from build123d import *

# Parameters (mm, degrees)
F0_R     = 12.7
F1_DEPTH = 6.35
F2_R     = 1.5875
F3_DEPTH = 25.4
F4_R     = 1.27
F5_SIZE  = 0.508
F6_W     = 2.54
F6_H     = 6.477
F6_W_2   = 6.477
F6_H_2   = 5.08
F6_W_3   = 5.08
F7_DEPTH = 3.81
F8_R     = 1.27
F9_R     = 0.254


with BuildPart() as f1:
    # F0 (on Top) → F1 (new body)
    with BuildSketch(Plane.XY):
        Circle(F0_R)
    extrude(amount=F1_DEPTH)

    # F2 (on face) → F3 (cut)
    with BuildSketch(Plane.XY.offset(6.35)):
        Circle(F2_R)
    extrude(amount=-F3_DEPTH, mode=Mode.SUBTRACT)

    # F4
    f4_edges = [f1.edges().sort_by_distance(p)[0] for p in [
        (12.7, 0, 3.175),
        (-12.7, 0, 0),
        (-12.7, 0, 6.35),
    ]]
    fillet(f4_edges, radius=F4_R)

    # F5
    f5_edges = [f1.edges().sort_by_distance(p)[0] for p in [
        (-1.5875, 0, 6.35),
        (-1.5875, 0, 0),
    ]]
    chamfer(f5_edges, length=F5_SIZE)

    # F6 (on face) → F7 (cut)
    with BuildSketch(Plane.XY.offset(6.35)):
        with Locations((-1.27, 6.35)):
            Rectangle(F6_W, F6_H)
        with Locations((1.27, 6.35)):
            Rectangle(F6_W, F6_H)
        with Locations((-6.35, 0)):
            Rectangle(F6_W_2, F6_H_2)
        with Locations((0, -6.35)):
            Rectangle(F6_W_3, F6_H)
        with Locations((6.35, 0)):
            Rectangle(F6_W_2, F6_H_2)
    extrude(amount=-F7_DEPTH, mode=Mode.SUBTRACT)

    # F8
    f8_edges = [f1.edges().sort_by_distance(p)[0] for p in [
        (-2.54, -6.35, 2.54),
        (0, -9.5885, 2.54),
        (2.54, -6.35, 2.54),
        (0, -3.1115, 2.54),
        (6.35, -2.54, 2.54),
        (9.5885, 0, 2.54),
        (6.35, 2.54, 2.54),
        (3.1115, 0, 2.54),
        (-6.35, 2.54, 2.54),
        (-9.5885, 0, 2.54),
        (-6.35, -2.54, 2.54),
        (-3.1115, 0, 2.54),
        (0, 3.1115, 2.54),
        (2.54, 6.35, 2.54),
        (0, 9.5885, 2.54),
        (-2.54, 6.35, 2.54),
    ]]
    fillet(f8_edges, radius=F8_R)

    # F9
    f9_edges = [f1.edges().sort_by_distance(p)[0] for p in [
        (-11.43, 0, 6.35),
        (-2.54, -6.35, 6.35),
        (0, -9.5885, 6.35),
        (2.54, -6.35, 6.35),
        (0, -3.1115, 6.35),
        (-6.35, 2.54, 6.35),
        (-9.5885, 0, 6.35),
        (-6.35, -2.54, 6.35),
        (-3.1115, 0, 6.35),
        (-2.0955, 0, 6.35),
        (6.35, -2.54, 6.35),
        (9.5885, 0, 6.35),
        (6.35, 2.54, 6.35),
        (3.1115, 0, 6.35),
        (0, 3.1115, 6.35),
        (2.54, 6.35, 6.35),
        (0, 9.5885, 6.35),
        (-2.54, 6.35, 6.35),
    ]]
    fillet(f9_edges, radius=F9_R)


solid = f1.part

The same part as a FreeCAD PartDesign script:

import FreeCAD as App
import Part
import Sketcher
Q = App.Units.Quantity


def edges_at(feature, points):
    """Names of the edges that pass closest to the given points."""
    edges = feature.Shape.Edges
    near = lambda p: min(range(len(edges)), key=lambda i: edges[i].distToShape(Part.Vertex(*p))[0])
    return sorted({f"Edge{near(p) + 1}" for p in points})


def add_polygon(sketch, points):
    """Adds a closed chain of lines whose ends are joined by coincident constraints."""
    first, n = sketch.GeometryCount, len(points)
    for a, b in zip(points, points[1:] + points[:1]):
        sketch.addGeometry(Part.LineSegment(App.Vector(*a, 0), App.Vector(*b, 0)), False)
    for i in range(n):
        sketch.addConstraint(Sketcher.Constraint("Coincident", first + i, 2, first + (i + 1) % n, 1))

doc = App.newDocument("Part")
params = doc.addObject("Spreadsheet::Sheet", "Params")
for row, (alias, value) in enumerate([
    ("sketch1_diameter", "1 in"),
    ("pad1_length", "0.25 in"),
    ("sketch2_diameter", "0.125 in"),
    ("pocket1_length", "1 in"),
    ("fillet_radius", "0.05 in"),
    ("chamfer_size", "0.02 in"),
    ("sketch3_width", "0.2 in"),
    ("sketch3_width2", "0.255 in"),
    ("pocket2_length", "0.15 in"),
    ("fillet2_radius", "0.05 in"),
    ("fillet3_radius", "0.01 in"),
], start=1):
    params.set(f"A{row}", alias)
    params.set(f"B{row}", "=" + value)
    params.setAlias(f"B{row}", alias)

body = doc.addObject("PartDesign::Body", "Body")

# Sketch on XY plane
sketch1 = body.newObject("Sketcher::SketchObject", "Sketch")
sketch1.AttachmentSupport = (doc.getObject("XY_Plane"), [""])
sketch1.MapMode = "FlatFace"
sketch1.addGeometry(Part.Circle(App.Vector(0, 0, 0), App.Vector(0, 0, 1), 12.7), False)
sketch1.addConstraint([
    Sketcher.Constraint("Coincident", 0, 3, -1, 1),
    Sketcher.Constraint("Diameter", 0, Q("1 in")),
])
sketch1.setExpression("Constraints[1]", "Params.sketch1_diameter")
pad1 = body.newObject("PartDesign::Pad", "Pad")
pad1.Profile = sketch1
pad1.setExpression("Length", "Params.pad1_length")

# Sketch on XY plane
sketch2 = body.newObject("Sketcher::SketchObject", "Sketch001")
sketch2.AttachmentSupport = (doc.getObject("XY_Plane"), [""])
sketch2.MapMode = "FlatFace"
sketch2.AttachmentOffset = App.Placement(App.Vector(0, 0, 0.25 * 25.4), App.Rotation())
sketch2.addGeometry(Part.Circle(App.Vector(0, 0, 0), App.Vector(0, 0, 1), 1.5875), False)
sketch2.addConstraint([
    Sketcher.Constraint("Coincident", 0, 3, -1, 1),
    Sketcher.Constraint("Diameter", 0, Q("0.125 in")),
])
sketch2.setExpression("Constraints[1]", "Params.sketch2_diameter")
pocket1 = body.newObject("PartDesign::Pocket", "Pocket")
pocket1.Profile = sketch2
pocket1.setExpression("Length", "Params.pocket1_length")
doc.recompute()

fillet = body.newObject("PartDesign::Fillet", "Fillet")
fillet.Base = (pocket1, edges_at(pocket1, [(12.7, 0, 3.175), (-12.7, 0, 0), (-12.7, 0, 6.35)]))
fillet.setExpression("Radius", "Params.fillet_radius")
doc.recompute()

chamfer = body.newObject("PartDesign::Chamfer", "Chamfer")
chamfer.Base = (fillet, edges_at(fillet, [(-1.587, 0, 6.35), (-1.587, 0, 0)]))
chamfer.setExpression("Size", "Params.chamfer_size")

# Sketch on XY plane
sketch3 = body.newObject("Sketcher::SketchObject", "Sketch002")
sketch3.AttachmentSupport = (doc.getObject("XY_Plane"), [""])
sketch3.MapMode = "FlatFace"
sketch3.AttachmentOffset = App.Placement(App.Vector(0, 0, 0.25 * 25.4), App.Rotation())
add_polygon(sketch3, [(-2.54, 9.5885), (-2.54, 3.1115), (2.54, 3.1115), (2.54, 9.5885)])  # lines 0-3
add_polygon(sketch3, [(-9.5885, 2.54), (-9.5885, -2.54), (-3.1115, -2.54), (-3.1115, 2.54)])  # lines 4-7
add_polygon(sketch3, [(-2.54, -3.1115), (-2.54, -9.5885), (2.54, -9.5885), (2.54, -3.1115)])  # lines 8-11
add_polygon(sketch3, [(3.1115, 2.54), (3.1115, -2.54), (9.5885, -2.54), (9.5885, 2.54)])  # lines 12-15
sketch3.addConstraint([
    Sketcher.Constraint("Vertical", 0),
    Sketcher.Constraint("Horizontal", 1),
    Sketcher.Constraint("Vertical", 2),
    Sketcher.Constraint("Horizontal", 3),
    Sketcher.Constraint("Vertical", 4),
    Sketcher.Constraint("Horizontal", 5),
    Sketcher.Constraint("Vertical", 6),
    Sketcher.Constraint("Horizontal", 7),
    Sketcher.Constraint("Vertical", 8),
    Sketcher.Constraint("Horizontal", 9),
    Sketcher.Constraint("Vertical", 10),
    Sketcher.Constraint("Horizontal", 11),
    Sketcher.Constraint("Vertical", 12),
    Sketcher.Constraint("Horizontal", 13),
    Sketcher.Constraint("Vertical", 14),
    Sketcher.Constraint("Horizontal", 15),
    Sketcher.Constraint("Symmetric", 2, 2, 8, 2, -1, 1),
    Sketcher.Constraint("Symmetric", 0, 2, 10, 2, -1, 1),
    Sketcher.Constraint("Symmetric", 6, 2, 12, 2, -1, 1),
    Sketcher.Constraint("Symmetric", 4, 2, 14, 2, -1, 1),
    Sketcher.Constraint("Horizontal", 5, 2, 12, 2),
    Sketcher.Constraint("Vertical", 3, 2, 8, 2),
    Sketcher.Constraint("Equal", 15, 0),
    Sketcher.Constraint("Equal", 11, 4),
    Sketcher.Constraint("DistanceX", 1, 1, 1, 2, Q("0.2 in")),
    Sketcher.Constraint("DistanceY", 8, 2, 0, 2, Q("0.5 in")),
    Sketcher.Constraint("DistanceX", 5, 1, 5, 2, Q("0.255 in")),
    Sketcher.Constraint("DistanceX", 5, 2, 12, 2, Q("0.245 in")),
])
sketch3.setExpression("Constraints[40]", "Params.sketch3_width")
sketch3.setExpression("Constraints[42]", "Params.sketch3_width2")
pocket2 = body.newObject("PartDesign::Pocket", "Pocket001")
pocket2.Profile = sketch3
pocket2.setExpression("Length", "Params.pocket2_length")
doc.recompute()

fillet2 = body.newObject("PartDesign::Fillet", "Fillet001")
fillet2.Base = (pocket2, edges_at(pocket2, [
    (-2.54, -6.35, 2.54),
    (0, -9.588, 2.54),
    (2.54, -6.35, 2.54),
    (0, -3.111, 2.54),
    (6.35, -2.54, 2.54),
    (9.588, 0, 2.54),
    (6.35, 2.54, 2.54),
    (3.111, 0, 2.54),
    (-6.35, 2.54, 2.54),
    (-9.588, 0, 2.54),
    (-6.35, -2.54, 2.54),
    (-3.111, 0, 2.54),
    (0, 3.111, 2.54),
    (2.54, 6.35, 2.54),
    (0, 9.588, 2.54),
    (-2.54, 6.35, 2.54),
]))
fillet2.setExpression("Radius", "Params.fillet2_radius")
doc.recompute()

fillet3 = body.newObject("PartDesign::Fillet", "Fillet002")
fillet3.Base = (fillet2, edges_at(fillet2, [
    (-11.43, 0, 6.35),
    (-2.54, -6.35, 6.35),
    (0, -9.588, 6.35),
    (2.54, -6.35, 6.35),
    (0, -3.111, 6.35),
    (-6.35, 2.54, 6.35),
    (-9.588, 0, 6.35),
    (-6.35, -2.54, 6.35),
    (-3.111, 0, 6.35),
    (-2.095, 0, 6.35),
    (6.35, -2.54, 6.35),
    (9.588, 0, 6.35),
    (6.35, 2.54, 6.35),
    (3.111, 0, 6.35),
    (0, 3.111, 6.35),
    (2.54, 6.35, 6.35),
    (0, 9.588, 6.35),
    (-2.54, 6.35, 6.35),
]))
fillet3.setExpression("Radius", "Params.fillet3_radius")

doc.recompute()
